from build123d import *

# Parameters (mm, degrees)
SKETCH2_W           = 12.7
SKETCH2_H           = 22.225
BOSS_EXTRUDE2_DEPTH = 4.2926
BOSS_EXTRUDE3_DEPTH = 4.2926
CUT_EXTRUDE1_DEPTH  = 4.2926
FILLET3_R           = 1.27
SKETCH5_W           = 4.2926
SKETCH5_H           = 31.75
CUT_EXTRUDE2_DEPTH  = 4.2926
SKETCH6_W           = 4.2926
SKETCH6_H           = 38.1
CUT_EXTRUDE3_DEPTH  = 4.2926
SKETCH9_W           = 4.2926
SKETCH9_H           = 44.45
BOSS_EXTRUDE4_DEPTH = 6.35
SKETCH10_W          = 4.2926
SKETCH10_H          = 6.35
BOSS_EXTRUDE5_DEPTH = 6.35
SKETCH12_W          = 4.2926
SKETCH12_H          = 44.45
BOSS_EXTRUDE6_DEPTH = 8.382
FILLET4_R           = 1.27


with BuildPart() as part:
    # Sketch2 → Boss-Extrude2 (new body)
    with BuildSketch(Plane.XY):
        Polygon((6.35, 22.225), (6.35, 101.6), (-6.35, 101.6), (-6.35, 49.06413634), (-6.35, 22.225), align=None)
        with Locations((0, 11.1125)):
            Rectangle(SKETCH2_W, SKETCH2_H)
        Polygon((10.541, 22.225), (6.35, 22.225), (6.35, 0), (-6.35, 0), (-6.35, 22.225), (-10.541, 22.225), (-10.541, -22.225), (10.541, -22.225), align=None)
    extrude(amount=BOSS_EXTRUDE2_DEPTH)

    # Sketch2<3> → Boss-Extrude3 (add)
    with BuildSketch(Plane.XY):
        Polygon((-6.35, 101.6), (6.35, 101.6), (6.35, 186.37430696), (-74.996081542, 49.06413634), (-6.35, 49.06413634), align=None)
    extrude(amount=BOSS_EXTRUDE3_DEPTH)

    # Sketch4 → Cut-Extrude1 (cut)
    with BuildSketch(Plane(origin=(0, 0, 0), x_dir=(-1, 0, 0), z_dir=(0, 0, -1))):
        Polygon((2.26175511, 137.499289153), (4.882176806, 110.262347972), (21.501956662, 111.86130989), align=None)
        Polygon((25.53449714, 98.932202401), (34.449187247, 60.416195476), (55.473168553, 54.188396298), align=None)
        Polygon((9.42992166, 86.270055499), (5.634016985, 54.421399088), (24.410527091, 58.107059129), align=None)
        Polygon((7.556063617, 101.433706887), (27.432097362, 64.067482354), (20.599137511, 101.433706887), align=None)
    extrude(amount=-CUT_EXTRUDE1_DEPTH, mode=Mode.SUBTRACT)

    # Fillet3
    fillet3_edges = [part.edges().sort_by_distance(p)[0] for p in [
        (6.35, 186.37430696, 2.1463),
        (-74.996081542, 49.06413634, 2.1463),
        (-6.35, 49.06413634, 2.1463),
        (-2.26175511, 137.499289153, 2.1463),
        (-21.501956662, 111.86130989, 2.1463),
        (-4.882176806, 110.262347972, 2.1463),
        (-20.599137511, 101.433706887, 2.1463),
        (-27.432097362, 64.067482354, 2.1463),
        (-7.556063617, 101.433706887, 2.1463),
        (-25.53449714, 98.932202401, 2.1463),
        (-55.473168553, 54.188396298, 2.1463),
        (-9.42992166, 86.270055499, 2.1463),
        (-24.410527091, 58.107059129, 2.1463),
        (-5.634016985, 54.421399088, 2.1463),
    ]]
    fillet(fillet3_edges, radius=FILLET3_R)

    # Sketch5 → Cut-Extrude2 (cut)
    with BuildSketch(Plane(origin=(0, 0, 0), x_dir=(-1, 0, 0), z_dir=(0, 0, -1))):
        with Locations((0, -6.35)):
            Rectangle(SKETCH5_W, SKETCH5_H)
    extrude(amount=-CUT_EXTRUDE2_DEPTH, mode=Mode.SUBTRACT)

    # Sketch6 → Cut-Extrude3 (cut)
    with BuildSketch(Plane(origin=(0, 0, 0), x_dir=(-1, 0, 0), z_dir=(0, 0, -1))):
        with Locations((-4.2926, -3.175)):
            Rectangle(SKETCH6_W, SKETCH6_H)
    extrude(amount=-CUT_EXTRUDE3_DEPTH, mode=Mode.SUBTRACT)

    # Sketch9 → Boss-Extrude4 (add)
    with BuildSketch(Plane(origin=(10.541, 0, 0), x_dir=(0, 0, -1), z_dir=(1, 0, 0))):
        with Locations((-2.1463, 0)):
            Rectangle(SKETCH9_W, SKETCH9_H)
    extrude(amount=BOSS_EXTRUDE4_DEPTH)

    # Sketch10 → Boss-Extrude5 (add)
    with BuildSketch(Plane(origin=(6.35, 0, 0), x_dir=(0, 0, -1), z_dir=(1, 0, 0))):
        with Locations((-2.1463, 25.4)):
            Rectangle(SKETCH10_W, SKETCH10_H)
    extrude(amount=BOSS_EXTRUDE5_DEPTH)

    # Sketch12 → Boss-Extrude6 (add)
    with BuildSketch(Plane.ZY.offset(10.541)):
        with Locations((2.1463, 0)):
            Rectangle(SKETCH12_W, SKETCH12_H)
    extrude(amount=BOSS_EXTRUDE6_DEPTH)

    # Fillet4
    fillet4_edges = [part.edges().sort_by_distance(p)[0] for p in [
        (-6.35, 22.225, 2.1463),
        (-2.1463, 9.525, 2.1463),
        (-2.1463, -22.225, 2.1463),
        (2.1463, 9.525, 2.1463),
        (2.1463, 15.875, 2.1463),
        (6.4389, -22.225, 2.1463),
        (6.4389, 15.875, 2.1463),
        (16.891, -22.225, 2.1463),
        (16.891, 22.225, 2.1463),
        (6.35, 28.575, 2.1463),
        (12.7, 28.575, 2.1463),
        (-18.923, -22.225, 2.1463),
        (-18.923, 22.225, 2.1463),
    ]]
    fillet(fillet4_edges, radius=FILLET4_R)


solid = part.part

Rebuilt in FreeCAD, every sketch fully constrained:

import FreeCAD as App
import Part
import Sketcher
Q = App.Units.Quantity


def edges_at(feature, points):
    """Names of the edges that pass closest to the given points."""
    edges = feature.Shape.Edges
    near = lambda p: min(range(len(edges)), key=lambda i: edges[i].distToShape(Part.Vertex(*p))[0])
    return sorted({f"Edge{near(p) + 1}" for p in points})

doc = App.newDocument("Part")
body = doc.addObject("PartDesign::Body", "Body")

# Sketch on XY plane
sketch1 = body.newObject("Sketcher::SketchObject", "Sketch")
sketch1.AttachmentSupport = (doc.getObject("XY_Plane"), [""])
sketch1.MapMode = "FlatFace"
sketch1.addGeometry(Part.LineSegment(App.Vector(6.3, 101.6, 0), App.Vector(-6.3, 101.6, 0)), False)
sketch1.addGeometry(Part.LineSegment(App.Vector(-6.3, 101.6, 0), App.Vector(-6.3, 22.2, 0)), False)
sketch1.addGeometry(Part.LineSegment(App.Vector(-6.3, 22.2, 0), App.Vector(-10.5, 22.2, 0)), False)
sketch1.addGeometry(Part.LineSegment(App.Vector(-10.5, 22.2, 0), App.Vector(-10.5, -22.2, 0)), False)
sketch1.addGeometry(Part.LineSegment(App.Vector(-10.5, -22.2, 0), App.Vector(10.5, -22.2, 0)), False)
sketch1.addGeometry(Part.LineSegment(App.Vector(10.5, -22.2, 0), App.Vector(10.5, 22.2, 0)), False)
sketch1.addGeometry(Part.LineSegment(App.Vector(10.5, 22.2, 0), App.Vector(6.3, 22.2, 0)), False)
sketch1.addGeometry(Part.LineSegment(App.Vector(6.3, 22.2, 0), App.Vector(6.3, 101.6, 0)), False)
sketch1.addConstraint(Sketcher.Constraint("Coincident", 0, 2, 1, 1))
sketch1.addConstraint(Sketcher.Constraint("Coincident", 1, 2, 2, 1))
sketch1.addConstraint(Sketcher.Constraint("Coincident", 2, 2, 3, 1))
sketch1.addConstraint(Sketcher.Constraint("Coincident", 3, 2, 4, 1))
sketch1.addConstraint(Sketcher.Constraint("Coincident", 4, 2, 5, 1))
sketch1.addConstraint(Sketcher.Constraint("Coincident", 5, 2, 6, 1))
sketch1.addConstraint(Sketcher.Constraint("Coincident", 6, 2, 7, 1))
sketch1.addConstraint(Sketcher.Constraint("Coincident", 7, 2, 0, 1))
sketch1.addConstraint(Sketcher.Constraint("Horizontal", 0))
sketch1.addConstraint(Sketcher.Constraint("Vertical", 1))
sketch1.addConstraint(Sketcher.Constraint("Horizontal", 2))
sketch1.addConstraint(Sketcher.Constraint("Vertical", 3))
sketch1.addConstraint(Sketcher.Constraint("Horizontal", 4))
sketch1.addConstraint(Sketcher.Constraint("Vertical", 5))
sketch1.addConstraint(Sketcher.Constraint("Horizontal", 6))
sketch1.addConstraint(Sketcher.Constraint("Vertical", 7))
sketch1.addConstraint(Sketcher.Constraint("Symmetric", 2, 2, 4, 2, -1, 1))
sketch1.addConstraint(Sketcher.Constraint("Symmetric", 1, 2, 6, 2, -2))
sketch1.addConstraint(Sketcher.Constraint("DistanceX", 0, 2, 0, 1, Q("0.5 in")))
sketch1.addConstraint(Sketcher.Constraint("DistanceY", -1, 1, 0, 2, Q("4 in")))
sketch1.addConstraint(Sketcher.Constraint("DistanceX", 4, 1, 4, 2, Q("0.83 in")))
sketch1.addConstraint(Sketcher.Constraint("DistanceY", 3, 2, 3, 1, Q("1.75 in")))
pad1 = body.newObject("PartDesign::Pad", "Pad")
pad1.Profile = sketch1
pad1.Length = Q("0.169 in")

# Sketch on XY plane
sketch2 = body.newObject("Sketcher::SketchObject", "Sketch001")
sketch2.AttachmentSupport = (doc.getObject("XY_Plane"), [""])
sketch2.MapMode = "FlatFace"
sketch2.addGeometry(Part.LineSegment(App.Vector(-6, 102, 0), App.Vector(6, 102, 0)), False)
sketch2.addGeometry(Part.LineSegment(App.Vector(6, 102, 0), App.Vector(6, 186, 0)), False)
sketch2.addGeometry(Part.LineSegment(App.Vector(6, 186, 0), App.Vector(-75, 49, 0)), False)
sketch2.addGeometry(Part.LineSegment(App.Vector(-75, 49, 0), App.Vector(-6, 49, 0)), False)
sketch2.addGeometry(Part.LineSegment(App.Vector(-6, 49, 0), App.Vector(-6, 102, 0)), False)
sketch2.addConstraint(Sketcher.Constraint("Coincident", 0, 2, 1, 1))
sketch2.addConstraint(Sketcher.Constraint("Coincident", 1, 2, 2, 1))
sketch2.addConstraint(Sketcher.Constraint("Coincident", 2, 2, 3, 1))
sketch2.addConstraint(Sketcher.Constraint("Coincident", 3, 2, 4, 1))
sketch2.addConstraint(Sketcher.Constraint("Coincident", 4, 2, 0, 1))
sketch2.addConstraint(Sketcher.Constraint("Horizontal", 0))
sketch2.addConstraint(Sketcher.Constraint("Vertical", 1))
sketch2.addConstraint(Sketcher.Constraint("Horizontal", 3))
sketch2.addConstraint(Sketcher.Constraint("Vertical", 4))
sketch2.addConstraint(Sketcher.Constraint("DistanceX", 0, 1, 0, 2, Q("0.5 in")))
sketch2.addConstraint(Sketcher.Constraint("DistanceY", -1, 1, 0, 2, Q("4 in")))
sketch2.addConstraint(Sketcher.Constraint("DistanceX", -1, 1, 0, 2, Q("0.25 in")))
sketch2.addConstraint(Sketcher.Constraint("DistanceX", 3, 1, 3, 2, 68.646082))
sketch2.addConstraint(Sketcher.Constraint("DistanceY", 1, 1, 1, 2, 84.774307))
sketch2.addConstraint(Sketcher.Constraint("DistanceY", 4, 1, 4, 2, 52.535864))
pad2 = body.newObject("PartDesign::Pad", "Pad001")
pad2.Profile = sketch2
pad2.Length = Q("0.169 in")

# Sketch on XY plane
sketch3 = body.newObject("Sketcher::SketchObject", "Sketch002")
sketch3.AttachmentSupport = (doc.getObject("XY_Plane"), [""])
sketch3.MapMode = "FlatFace"
sketch3.addGeometry(Part.LineSegment(App.Vector(-2, 137, 0), App.Vector(-5, 110, 0)), False)
sketch3.addGeometry(Part.LineSegment(App.Vector(-5, 110, 0), App.Vector(-22, 112, 0)), False)
sketch3.addGeometry(Part.LineSegment(App.Vector(-22, 112, 0), App.Vector(-2, 137, 0)), False)
sketch3.addGeometry(Part.LineSegment(App.Vector(-26, 99, 0), App.Vector(-34, 60, 0)), False)
sketch3.addGeometry(Part.LineSegment(App.Vector(-34, 60, 0), App.Vector(-55, 54, 0)), False)
sketch3.addGeometry(Part.LineSegment(App.Vector(-55, 54, 0), App.Vector(-26, 99, 0)), False)
sketch3.addGeometry(Part.LineSegment(App.Vector(-9, 86, 0), App.Vector(-6, 54, 0)), False)
sketch3.addGeometry(Part.LineSegment(App.Vector(-6, 54, 0), App.Vector(-24, 58, 0)), False)
sketch3.addGeometry(Part.LineSegment(App.Vector(-24, 58, 0), App.Vector(-9, 86, 0)), False)
sketch3.addGeometry(Part.LineSegment(App.Vector(-8, 101, 0), App.Vector(-27, 64, 0)), False)
sketch3.addGeometry(Part.LineSegment(App.Vector(-27, 64, 0), App.Vector(-21, 101, 0)), False)
sketch3.addGeometry(Part.LineSegment(App.Vector(-21, 101, 0), App.Vector(-8, 101, 0)), False)
sketch3.addConstraint(Sketcher.Constraint("Coincident", 0, 2, 1, 1))
sketch3.addConstraint(Sketcher.Constraint("Coincident", 1, 2, 2, 1))
sketch3.addConstraint(Sketcher.Constraint("Coincident", 2, 2, 0, 1))
sketch3.addConstraint(Sketcher.Constraint("Coincident", 3, 2, 4, 1))
sketch3.addConstraint(Sketcher.Constraint("Coincident", 4, 2, 5, 1))
sketch3.addConstraint(Sketcher.Constraint("Coincident", 5, 2, 3, 1))
sketch3.addConstraint(Sketcher.Constraint("Coincident", 6, 2, 7, 1))
sketch3.addConstraint(Sketcher.Constraint("Coincident", 7, 2, 8, 1))
sketch3.addConstraint(Sketcher.Constraint("Coincident", 8, 2, 6, 1))
sketch3.addConstraint(Sketcher.Constraint("Coincident", 9, 2, 10, 1))
sketch3.addConstraint(Sketcher.Constraint("Coincident", 10, 2, 11, 1))
sketch3.addConstraint(Sketcher.Constraint("Coincident", 11, 2, 9, 1))
sketch3.addConstraint(Sketcher.Constraint("Horizontal", 11))
sketch3.addConstraint(Sketcher.Constraint("Perpendicular", 0, 1))
sketch3.addConstraint(Sketcher.Constraint("Parallel", 8, 9))
sketch3.addConstraint(Sketcher.Constraint("DistanceX", 6, 2, 0, 2, Q("0.0296 in")))
sketch3.addConstraint(Sketcher.Constraint("Distance", 4, 21.926999))
sketch3.addConstraint(Sketcher.Constraint("DistanceY", -1, 1, 6, 2, 54.421399))
sketch3.addConstraint(Sketcher.Constraint("DistanceX", 1, 2, 2, 2, 19.240202))
sketch3.addConstraint(Sketcher.Constraint("DistanceY", 4, 2, 3, 2, 6.227799))
sketch3.addConstraint(Sketcher.Constraint("Distance", 1, 16.696519))
sketch3.addConstraint(Sketcher.Constraint("Distance", 3, 39.534219))
sketch3.addConstraint(Sketcher.Constraint("Distance", 5, 53.836161))
sketch3.addConstraint(Sketcher.Constraint("Distance", 8, 31.899419))
sketch3.addConstraint(Sketcher.Constraint("Distance", 9, 42.323651))
sketch3.addConstraint(Sketcher.Constraint("Distance", 10, 37.98584))
sketch3.addConstraint(Sketcher.Constraint("DistanceX", 11, 1, 11, 2, 13.043074))
sketch3.addConstraint(Sketcher.Constraint("DistanceY", -1, 1, 1, 2, 111.86131))
sketch3.addConstraint(Sketcher.Constraint("DistanceY", -1, 1, 2, 2, 137.499289))
sketch3.addConstraint(Sketcher.Constraint("DistanceX", 4, 2, -1, 1, 55.473169))
sketch3.addConstraint(Sketcher.Constraint("DistanceY", -1, 1, 7, 2, 58.107059))
sketch3.addConstraint(Sketcher.Constraint("DistanceX", 8, 2, -1, 1, 9.429922))
sketch3.addConstraint(Sketcher.Constraint("DistanceX", 3, 2, 1, 2, 12.947231))
sketch3.addConstraint(Sketcher.Constraint("DistanceY", 4, 2, 0, 2, 56.073952))
sketch3.addConstraint(Sketcher.Constraint("DistanceX", 9, 2, 7, 2, 3.02157))
sketch3.addConstraint(Sketcher.Constraint("DistanceY", 10, 2, 0, 2, 8.828641))
pocket1 = body.newObject("PartDesign::Pocket", "Pocket")
pocket1.Profile = sketch3
pocket1.Length = Q("0.169 in")
pocket1.Reversed = True
doc.recompute()

fillet = body.newObject("PartDesign::Fillet", "Fillet")
fillet.Base = (pocket1, edges_at(pocket1, [
    (6.35, 186.374, 2.146),
    (-74.996, 49.064, 2.146),
    (-6.35, 49.064, 2.146),
    (-2.262, 137.499, 2.146),
    (-21.502, 111.861, 2.146),
    (-4.882, 110.262, 2.146),
    (-20.599, 101.434, 2.146),
    (-27.432, 64.067, 2.146),
    (-7.556, 101.434, 2.146),
    (-25.534, 98.932, 2.146),
    (-55.473, 54.188, 2.146),
    (-9.43, 86.27, 2.146),
    (-24.411, 58.107, 2.146),
    (-5.634, 54.421, 2.146),
]))
fillet.Radius = Q("0.05 in")

# Sketch on XY plane
sketch4 = body.newObject("Sketcher::SketchObject", "Sketch003")
sketch4.AttachmentSupport = (doc.getObject("XY_Plane"), [""])
sketch4.MapMode = "FlatFace"
sketch4.addGeometry(Part.LineSegment(App.Vector(2.1, 9.5, 0), App.Vector(2.1, -22.2, 0)), False)
sketch4.addGeometry(Part.LineSegment(App.Vector(2.1, -22.2, 0), App.Vector(-2.1, -22.2, 0)), False)
sketch4.addGeometry(Part.LineSegment(App.Vector(-2.1, -22.2, 0), App.Vector(-2.1, 9.5, 0)), False)
sketch4.addGeometry(Part.LineSegment(App.Vector(-2.1, 9.5, 0), App.Vector(2.1, 9.5, 0)), False)
sketch4.addConstraint(Sketcher.Constraint("Coincident", 0, 2, 1, 1))
sketch4.addConstraint(Sketcher.Constraint("Coincident", 1, 2, 2, 1))
sketch4.addConstraint(Sketcher.Constraint("Coincident", 2, 2, 3, 1))
sketch4.addConstraint(Sketcher.Constraint("Coincident", 3, 2, 0, 1))
sketch4.addConstraint(Sketcher.Constraint("Vertical", 0))
sketch4.addConstraint(Sketcher.Constraint("Horizontal", 1))
sketch4.addConstraint(Sketcher.Constraint("Vertical", 2))
sketch4.addConstraint(Sketcher.Constraint("Horizontal", 3))
sketch4.addConstraint(Sketcher.Constraint("DistanceY", 0, 2, 0, 1, Q("1.25 in")))
sketch4.addConstraint(Sketcher.Constraint("DistanceX", 1, 2, 1, 1, Q("0.169 in")))
sketch4.addConstraint(Sketcher.Constraint("DistanceY", 0, 2, -1, 1, Q("0.875 in")))
sketch4.addConstraint(Sketcher.Constraint("DistanceX", -1, 1, 0, 2, Q("0.0845 in")))
pocket2 = body.newObject("PartDesign::Pocket", "Pocket001")
pocket2.Profile = sketch4
pocket2.Length = Q("0.169 in")
pocket2.Reversed = True

# Sketch on XY plane
sketch5 = body.newObject("Sketcher::SketchObject", "Sketch004")
sketch5.AttachmentSupport = (doc.getObject("XY_Plane"), [""])
sketch5.MapMode = "FlatFace"
sketch5.addGeometry(Part.LineSegment(App.Vector(6.4, 15.9, 0), App.Vector(6.4, -22.2, 0)), False)
sketch5.addGeometry(Part.LineSegment(App.Vector(6.4, -22.2, 0), App.Vector(2.1, -22.2, 0)), False)
sketch5.addGeometry(Part.LineSegment(App.Vector(2.1, -22.2, 0), App.Vector(2.1, 15.9, 0)), False)
sketch5.addGeometry(Part.LineSegment(App.Vector(2.1, 15.9, 0), App.Vector(6.4, 15.9, 0)), False)
sketch5.addConstraint(Sketcher.Constraint("Coincident", 0, 2, 1, 1))
sketch5.addConstraint(Sketcher.Constraint("Coincident", 1, 2, 2, 1))
sketch5.addConstraint(Sketcher.Constraint("Coincident", 2, 2, 3, 1))
sketch5.addConstraint(Sketcher.Constraint("Coincident", 3, 2, 0, 1))
sketch5.addConstraint(Sketcher.Constraint("Vertical", 0))
sketch5.addConstraint(Sketcher.Constraint("Horizontal", 1))
sketch5.addConstraint(Sketcher.Constraint("Vertical", 2))
sketch5.addConstraint(Sketcher.Constraint("Horizontal", 3))
sketch5.addConstraint(Sketcher.Constraint("DistanceY", 0, 2, 0, 1, Q("1.5 in")))
sketch5.addConstraint(Sketcher.Constraint("DistanceX", 1, 2, 1, 1, Q("0.169 in")))
sketch5.addConstraint(Sketcher.Constraint("DistanceY", 0, 2, -1, 1, Q("0.875 in")))
sketch5.addConstraint(Sketcher.Constraint("DistanceX", -1, 1, 0, 2, Q("0.2535 in")))
pocket3 = body.newObject("PartDesign::Pocket", "Pocket002")
pocket3.Profile = sketch5
pocket3.Length = Q("0.169 in")
pocket3.Reversed = True

# Sketch on YZ plane
sketch6 = body.newObject("Sketcher::SketchObject", "Sketch005")
sketch6.AttachmentSupport = (doc.getObject("YZ_Plane"), [""])
sketch6.MapMode = "FlatFace"
sketch6.AttachmentOffset = App.Placement(App.Vector(0, 0, 0.415 * 25.4), App.Rotation())
sketch6.addGeometry(Part.LineSegment(App.Vector(22.2, 4.3, 0), App.Vector(-22.2, 4.3, 0)), False)
sketch6.addGeometry(Part.LineSegment(App.Vector(-22.2, 4.3, 0), App.Vector(-22.2, 0, 0)), False)
sketch6.addGeometry(Part.LineSegment(App.Vector(-22.2, 0, 0), App.Vector(22.2, 0, 0)), False)
sketch6.addGeometry(Part.LineSegment(App.Vector(22.2, 0, 0), App.Vector(22.2, 4.3, 0)), False)
sketch6.addConstraint(Sketcher.Constraint("Coincident", 0, 2, 1, 1))
sketch6.addConstraint(Sketcher.Constraint("Coincident", 1, 2, 2, 1))
sketch6.addConstraint(Sketcher.Constraint("Coincident", 2, 2, 3, 1))
sketch6.addConstraint(Sketcher.Constraint("Coincident", 3, 2, 0, 1))
sketch6.addConstraint(Sketcher.Constraint("Horizontal", 0))
sketch6.addConstraint(Sketcher.Constraint("Vertical", 1))
sketch6.addConstraint(Sketcher.Constraint("Horizontal", 2))
sketch6.addConstraint(Sketcher.Constraint("Vertical", 3))
sketch6.addConstraint(Sketcher.Constraint("Symmetric", 1, 2, 2, 2, -1, 1))
sketch6.addConstraint(Sketcher.Constraint("DistanceX", 0, 2, 0, 1, Q("1.75 in")))
sketch6.addConstraint(Sketcher.Constraint("DistanceY", 1, 2, 1, 1, Q("0.169 in")))
pad3 = body.newObject("PartDesign::Pad", "Pad002")
pad3.Profile = sketch6
pad3.Length = Q("0.25 in")

# Sketch on YZ plane
sketch7 = body.newObject("Sketcher::SketchObject", "Sketch006")
sketch7.AttachmentSupport = (doc.getObject("YZ_Plane"), [""])
sketch7.MapMode = "FlatFace"
sketch7.AttachmentOffset = App.Placement(App.Vector(0, 0, 0.25 * 25.4), App.Rotation())
sketch7.addGeometry(Part.LineSegment(App.Vector(28.6, 4.3, 0), App.Vector(22.2, 4.3, 0)), False)
sketch7.addGeometry(Part.LineSegment(App.Vector(22.2, 4.3, 0), App.Vector(22.2, 0, 0)), False)
sketch7.addGeometry(Part.LineSegment(App.Vector(22.2, 0, 0), App.Vector(28.6, 0, 0)), False)
sketch7.addGeometry(Part.LineSegment(App.Vector(28.6, 0, 0), App.Vector(28.6, 4.3, 0)), False)
sketch7.addConstraint(Sketcher.Constraint("Coincident", 0, 2, 1, 1))
sketch7.addConstraint(Sketcher.Constraint("Coincident", 1, 2, 2, 1))
sketch7.addConstraint(Sketcher.Constraint("Coincident", 2, 2, 3, 1))
sketch7.addConstraint(Sketcher.Constraint("Coincident", 3, 2, 0, 1))
sketch7.addConstraint(Sketcher.Constraint("Horizontal", 0))
sketch7.addConstraint(Sketcher.Constraint("Vertical", 1))
sketch7.addConstraint(Sketcher.Constraint("Horizontal", 2))
sketch7.addConstraint(Sketcher.Constraint("Vertical", 3))
sketch7.addConstraint(Sketcher.Constraint("PointOnObject", 1, 2, -1))
sketch7.addConstraint(Sketcher.Constraint("DistanceX", 0, 2, 0, 1, Q("0.25 in")))
sketch7.addConstraint(Sketcher.Constraint("DistanceY", 1, 2, 1, 1, Q("0.169 in")))
sketch7.addConstraint(Sketcher.Constraint("DistanceX", -1, 1, 0, 2, Q("0.875 in")))
pad4 = body.newObject("PartDesign::Pad", "Pad003")
pad4.Profile = sketch7
pad4.Length = Q("0.25 in")

# Sketch on YZ plane
sketch8 = body.newObject("Sketcher::SketchObject", "Sketch007")
sketch8.AttachmentSupport = (doc.getObject("YZ_Plane"), [""])
sketch8.MapMode = "FlatFace"
sketch8.AttachmentOffset = App.Placement(App.Vector(0, 0, -0.415 * 25.4), App.Rotation())
sketch8.addGeometry(Part.LineSegment(App.Vector(22.2, 0, 0), App.Vector(-22.2, 0, 0)), False)
sketch8.addGeometry(Part.LineSegment(App.Vector(-22.2, 0, 0), App.Vector(-22.2, 4.3, 0)), False)
sketch8.addGeometry(Part.LineSegment(App.Vector(-22.2, 4.3, 0), App.Vector(22.2, 4.3, 0)), False)
sketch8.addGeometry(Part.LineSegment(App.Vector(22.2, 4.3, 0), App.Vector(22.2, 0, 0)), False)
sketch8.addConstraint(Sketcher.Constraint("Coincident", 0, 2, 1, 1))
sketch8.addConstraint(Sketcher.Constraint("Coincident", 1, 2, 2, 1))
sketch8.addConstraint(Sketcher.Constraint("Coincident", 2, 2, 3, 1))
sketch8.addConstraint(Sketcher.Constraint("Coincident", 3, 2, 0, 1))
sketch8.addConstraint(Sketcher.Constraint("Horizontal", 0))
sketch8.addConstraint(Sketcher.Constraint("Vertical", 1))
sketch8.addConstraint(Sketcher.Constraint("Horizontal", 2))
sketch8.addConstraint(Sketcher.Constraint("Vertical", 3))
sketch8.addConstraint(Sketcher.Constraint("Symmetric", 0, 2, 3, 2, -1, 1))
sketch8.addConstraint(Sketcher.Constraint("DistanceX", 0, 2, 0, 1, Q("1.75 in")))
sketch8.addConstraint(Sketcher.Constraint("DistanceY", 1, 1, 1, 2, Q("0.169 in")))
pad5 = body.newObject("PartDesign::Pad", "Pad004")
pad5.Profile = sketch8
pad5.Length = Q("0.33 in")
pad5.Reversed = True
doc.recompute()

fillet2 = body.newObject("PartDesign::Fillet", "Fillet001")
fillet2.Base = (pad5, edges_at(pad5, [
    (-6.35, 22.225, 2.146),
    (-2.146, 9.525, 2.146),
    (-2.146, -22.225, 2.146),
    (2.146, 9.525, 2.146),
    (2.146, 15.875, 2.146),
    (6.439, -22.225, 2.146),
    (6.439, 15.875, 2.146),
    (16.891, -22.225, 2.146),
    (16.891, 22.225, 2.146),
    (6.35, 28.575, 2.146),
    (12.7, 28.575, 2.146),
    (-18.923, -22.225, 2.146),
    (-18.923, 22.225, 2.146),
]))
fillet2.Radius = Q("0.05 in")

doc.recompute()
